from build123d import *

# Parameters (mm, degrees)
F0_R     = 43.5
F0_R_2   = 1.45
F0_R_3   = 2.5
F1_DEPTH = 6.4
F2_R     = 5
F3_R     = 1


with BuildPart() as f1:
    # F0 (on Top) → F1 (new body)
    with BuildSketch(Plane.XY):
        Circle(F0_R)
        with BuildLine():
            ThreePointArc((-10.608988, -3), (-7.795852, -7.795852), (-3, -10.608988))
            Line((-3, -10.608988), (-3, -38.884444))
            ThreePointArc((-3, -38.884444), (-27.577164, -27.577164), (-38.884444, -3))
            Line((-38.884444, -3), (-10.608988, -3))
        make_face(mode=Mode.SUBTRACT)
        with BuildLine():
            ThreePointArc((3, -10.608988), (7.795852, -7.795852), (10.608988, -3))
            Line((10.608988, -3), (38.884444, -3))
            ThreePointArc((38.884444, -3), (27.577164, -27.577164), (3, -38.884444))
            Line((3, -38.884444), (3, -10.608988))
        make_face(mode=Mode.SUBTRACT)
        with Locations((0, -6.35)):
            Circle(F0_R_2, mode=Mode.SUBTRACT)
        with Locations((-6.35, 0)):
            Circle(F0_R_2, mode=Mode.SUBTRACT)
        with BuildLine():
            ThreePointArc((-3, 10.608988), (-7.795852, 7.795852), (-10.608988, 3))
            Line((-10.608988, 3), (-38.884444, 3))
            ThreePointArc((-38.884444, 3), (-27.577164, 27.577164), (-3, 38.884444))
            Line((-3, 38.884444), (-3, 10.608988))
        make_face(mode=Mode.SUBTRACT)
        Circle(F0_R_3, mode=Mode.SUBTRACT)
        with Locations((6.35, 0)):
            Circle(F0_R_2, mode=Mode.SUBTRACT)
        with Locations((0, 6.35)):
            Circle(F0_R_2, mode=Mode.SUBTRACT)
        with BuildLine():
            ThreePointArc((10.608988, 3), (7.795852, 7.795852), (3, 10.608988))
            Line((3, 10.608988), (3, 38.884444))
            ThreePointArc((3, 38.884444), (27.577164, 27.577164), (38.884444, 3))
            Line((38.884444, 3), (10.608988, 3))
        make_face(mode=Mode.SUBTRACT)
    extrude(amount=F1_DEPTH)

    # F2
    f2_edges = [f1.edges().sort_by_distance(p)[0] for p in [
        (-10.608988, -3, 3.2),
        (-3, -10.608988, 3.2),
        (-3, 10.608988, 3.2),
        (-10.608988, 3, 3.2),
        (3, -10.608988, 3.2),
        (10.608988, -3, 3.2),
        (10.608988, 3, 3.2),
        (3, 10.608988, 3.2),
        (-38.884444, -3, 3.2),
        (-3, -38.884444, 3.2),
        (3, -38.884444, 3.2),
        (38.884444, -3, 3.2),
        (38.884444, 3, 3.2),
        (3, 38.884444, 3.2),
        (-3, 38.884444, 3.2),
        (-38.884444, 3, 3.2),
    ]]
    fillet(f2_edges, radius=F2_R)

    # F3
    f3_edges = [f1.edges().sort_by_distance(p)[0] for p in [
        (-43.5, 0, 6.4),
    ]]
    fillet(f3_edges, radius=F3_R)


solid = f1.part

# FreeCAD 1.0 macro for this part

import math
import FreeCAD as App
import Part
import Sketcher

V = App.Vector
Q = App.Units.Quantity


def edges_at(feature, points):
    """Names of the edges that pass closest to the given points."""
    edges = feature.Shape.Edges
    near = lambda p: min(range(len(edges)), key=lambda i: edges[i].distToShape(Part.Vertex(*p))[0])
    return sorted({f"Edge{near(p) + 1}" for p in points})

doc = App.newDocument("Part")
body = doc.addObject("PartDesign::Body", "Body")

# Sketch on XY plane
sketch1 = body.newObject("Sketcher::SketchObject", "Sketch")
sketch1.AttachmentSupport = (doc.getObject("XY_Plane"), [""])
sketch1.MapMode = "FlatFace"
sketch1.addGeometry(Part.Circle(V(0, 0, 0), V(0, 0, 1), 43.5), False)
sketch1.addGeometry(Part.LineSegment(V(-38.9, -3, 0), V(-10.6, -3, 0)), False)
sketch1.addGeometry(Part.ArcOfCircle(Part.Circle(V(0, 0, 0), V(0, 0, 1), 11), math.radians(-164), math.radians(-106)), False)
sketch1.addGeometry(Part.LineSegment(V(-3, -10.6, 0), V(-3, -38.9, 0)), False)
sketch1.addGeometry(Part.ArcOfCircle(Part.Circle(V(0, 0, 0), V(0, 0, 1), 39), math.radians(-176), math.radians(-94)), False)
sketch1.addGeometry(Part.LineSegment(V(3, -38.9, 0), V(3, -10.6, 0)), False)
sketch1.addGeometry(Part.ArcOfCircle(Part.Circle(V(0, 0, 0), V(0, 0, 1), 11), math.radians(-74), math.radians(-16)), False)
sketch1.addGeometry(Part.LineSegment(V(10.6, -3, 0), V(38.9, -3, 0)), False)
sketch1.addGeometry(Part.ArcOfCircle(Part.Circle(V(0, 0, 0), V(0, 0, 1), 39), math.radians(-86), math.radians(-4)), False)
sketch1.addGeometry(Part.Circle(V(0, -6.3, 0), V(0, 0, 1), 1.4), False)
sketch1.addGeometry(Part.Circle(V(-6.3, 0, 0), V(0, 0, 1), 1.4), False)
sketch1.addGeometry(Part.LineSegment(V(-3, 38.9, 0), V(-3, 10.6, 0)), False)
sketch1.addGeometry(Part.ArcOfCircle(Part.Circle(V(0, 0, 0), V(0, 0, 1), 11), math.radians(106), math.radians(164)), False)
sketch1.addGeometry(Part.LineSegment(V(-10.6, 3, 0), V(-38.9, 3, 0)), False)
sketch1.addGeometry(Part.ArcOfCircle(Part.Circle(V(0, 0, 0), V(0, 0, 1), 39), math.radians(94), math.radians(176)), False)
sketch1.addGeometry(Part.Circle(V(0, 0, 0), V(0, 0, 1), 2.5), False)
sketch1.addGeometry(Part.Circle(V(6.3, 0, 0), V(0, 0, 1), 1.4), False)
sketch1.addGeometry(Part.Circle(V(0, 6.3, 0), V(0, 0, 1), 1.4), False)
sketch1.addGeometry(Part.LineSegment(V(38.9, 3, 0), V(10.6, 3, 0)), False)
sketch1.addGeometry(Part.ArcOfCircle(Part.Circle(V(0, 0, 0), V(0, 0, 1), 11), math.radians(16), math.radians(74)), False)
sketch1.addGeometry(Part.LineSegment(V(3, 10.6, 0), V(3, 38.9, 0)), False)
sketch1.addGeometry(Part.ArcOfCircle(Part.Circle(V(0, 0, 0), V(0, 0, 1), 39), math.radians(4), math.radians(86)), False)
sketch1.addConstraint(Sketcher.Constraint("Coincident", 1, 2, 2, 1))
sketch1.addConstraint(Sketcher.Constraint("Coincident", 2, 2, 3, 1))
sketch1.addConstraint(Sketcher.Constraint("Coincident", 3, 2, 4, 2))
sketch1.addConstraint(Sketcher.Constraint("Coincident", 4, 1, 1, 1))
sketch1.addConstraint(Sketcher.Constraint("Coincident", 5, 2, 6, 1))
sketch1.addConstraint(Sketcher.Constraint("Coincident", 6, 2, 7, 1))
sketch1.addConstraint(Sketcher.Constraint("Coincident", 7, 2, 8, 2))
sketch1.addConstraint(Sketcher.Constraint("Coincident", 8, 1, 5, 1))
sketch1.addConstraint(Sketcher.Constraint("Coincident", 11, 2, 12, 1))
sketch1.addConstraint(Sketcher.Constraint("Coincident", 12, 2, 13, 1))
sketch1.addConstraint(Sketcher.Constraint("Coincident", 13, 2, 14, 2))
sketch1.addConstraint(Sketcher.Constraint("Coincident", 14, 1, 11, 1))
sketch1.addConstraint(Sketcher.Constraint("Coincident", 18, 2, 19, 1))
sketch1.addConstraint(Sketcher.Constraint("Coincident", 19, 2, 20, 1))
sketch1.addConstraint(Sketcher.Constraint("Coincident", 20, 2, 21, 2))
sketch1.addConstraint(Sketcher.Constraint("Coincident", 21, 1, 18, 1))
sketch1.addConstraint(Sketcher.Constraint("Horizontal", 1))
sketch1.addConstraint(Sketcher.Constraint("Vertical", 3))
sketch1.addConstraint(Sketcher.Constraint("Vertical", 5))
sketch1.addConstraint(Sketcher.Constraint("Horizontal", 7))
sketch1.addConstraint(Sketcher.Constraint("Vertical", 11))
sketch1.addConstraint(Sketcher.Constraint("Horizontal", 13))
sketch1.addConstraint(Sketcher.Constraint("Horizontal", 18))
sketch1.addConstraint(Sketcher.Constraint("Vertical", 20))
sketch1.addConstraint(Sketcher.Constraint("Coincident", 0, 3, -1, 1))
sketch1.addConstraint(Sketcher.Constraint("Coincident", 2, 3, -1, 1))
sketch1.addConstraint(Sketcher.Constraint("Coincident", 4, 3, -1, 1))
sketch1.addConstraint(Sketcher.Constraint("Coincident", 6, 3, -1, 1))
sketch1.addConstraint(Sketcher.Constraint("Coincident", 8, 3, -1, 1))
sketch1.addConstraint(Sketcher.Constraint("Coincident", 12, 3, -1, 1))
sketch1.addConstraint(Sketcher.Constraint("Coincident", 14, 3, -1, 1))
sketch1.addConstraint(Sketcher.Constraint("Coincident", 15, 3, -1, 1))
sketch1.addConstraint(Sketcher.Constraint("Coincident", 19, 3, -1, 1))
sketch1.addConstraint(Sketcher.Constraint("Coincident", 21, 3, -1, 1))
sketch1.addConstraint(Sketcher.Constraint("Equal", 2, 6))
sketch1.addConstraint(Sketcher.Constraint("Equal", 4, 8))
sketch1.addConstraint(Sketcher.Constraint("Equal", 9, 10))
sketch1.addConstraint(Sketcher.Constraint("Equal", 6, 12))
sketch1.addConstraint(Sketcher.Constraint("Equal", 8, 14))
sketch1.addConstraint(Sketcher.Constraint("Equal", 10, 16))
sketch1.addConstraint(Sketcher.Constraint("Equal", 16, 17))
sketch1.addConstraint(Sketcher.Constraint("Equal", 12, 19))
sketch1.addConstraint(Sketcher.Constraint("Equal", 14, 21))
sketch1.addConstraint(Sketcher.Constraint("Symmetric", 10, 3, 16, 3, -1, 1))
sketch1.addConstraint(Sketcher.Constraint("Symmetric", 9, 3, 17, 3, -1, 1))
sketch1.addConstraint(Sketcher.Constraint("PointOnObject", 9, 3, -2))
sketch1.addConstraint(Sketcher.Constraint("PointOnObject", 10, 3, -1))
sketch1.addConstraint(Sketcher.Constraint("Horizontal", 2, 2, 5, 2))
sketch1.addConstraint(Sketcher.Constraint("Horizontal", 4, 1, 6, 2))
sketch1.addConstraint(Sketcher.Constraint("Horizontal", 13, 2, 18, 2))
sketch1.addConstraint(Sketcher.Constraint("Horizontal", 11, 2, 19, 2))
sketch1.addConstraint(Sketcher.Constraint("Vertical", 3, 2, 11, 2))
sketch1.addConstraint(Sketcher.Constraint("Vertical", 1, 2, 12, 2))
sketch1.addConstraint(Sketcher.Constraint("Equal", 18, 3))
sketch1.addConstraint(Sketcher.Constraint("Diameter", 0, Q("87 mm")))
sketch1.addConstraint(Sketcher.Constraint("Diameter", 15, Q("5 mm")))
sketch1.addConstraint(Sketcher.Constraint("Radius", 4, Q("39.000001 mm")))
sketch1.addConstraint(Sketcher.Constraint("Diameter", 9, Q("2.9 mm")))
sketch1.addConstraint(Sketcher.Constraint("DistanceY", 1, 2, -1, 1, Q("3 mm")))
sketch1.addConstraint(Sketcher.Constraint("DistanceY", 9, 3, -1, 1, Q("6.35 mm")))
sketch1.addConstraint(Sketcher.Constraint("DistanceX", 10, 3, -1, 1, Q("6.35 mm")))
sketch1.addConstraint(Sketcher.Constraint("Radius", 2, Q("11.025003 mm")))
pad1 = body.newObject("PartDesign::Pad", "Pad")
pad1.Profile = sketch1
pad1.Length = 6.4
doc.recompute()

fillet = body.newObject("PartDesign::Fillet", "Fillet")
fillet.Base = (pad1, edges_at(pad1, [
    (-10.609, -3, 3.2),
    (-3, -10.609, 3.2),
    (-3, 10.609, 3.2),
    (-10.609, 3, 3.2),
    (3, -10.609, 3.2),
    (10.609, -3, 3.2),
    (10.609, 3, 3.2),
    (3, 10.609, 3.2),
    (-38.884, -3, 3.2),
    (-3, -38.884, 3.2),
    (3, -38.884, 3.2),
    (38.884, -3, 3.2),
    (38.884, 3, 3.2),
    (3, 38.884, 3.2),
    (-3, 38.884, 3.2),
    (-38.884, 3, 3.2),
]))
fillet.Radius = 5
doc.recompute()

fillet2 = body.newObject("PartDesign::Fillet", "Fillet001")
fillet2.Base = (fillet, edges_at(fillet, [(-43.5, 0, 6.4)]))
fillet2.Radius = 1

doc.recompute()
